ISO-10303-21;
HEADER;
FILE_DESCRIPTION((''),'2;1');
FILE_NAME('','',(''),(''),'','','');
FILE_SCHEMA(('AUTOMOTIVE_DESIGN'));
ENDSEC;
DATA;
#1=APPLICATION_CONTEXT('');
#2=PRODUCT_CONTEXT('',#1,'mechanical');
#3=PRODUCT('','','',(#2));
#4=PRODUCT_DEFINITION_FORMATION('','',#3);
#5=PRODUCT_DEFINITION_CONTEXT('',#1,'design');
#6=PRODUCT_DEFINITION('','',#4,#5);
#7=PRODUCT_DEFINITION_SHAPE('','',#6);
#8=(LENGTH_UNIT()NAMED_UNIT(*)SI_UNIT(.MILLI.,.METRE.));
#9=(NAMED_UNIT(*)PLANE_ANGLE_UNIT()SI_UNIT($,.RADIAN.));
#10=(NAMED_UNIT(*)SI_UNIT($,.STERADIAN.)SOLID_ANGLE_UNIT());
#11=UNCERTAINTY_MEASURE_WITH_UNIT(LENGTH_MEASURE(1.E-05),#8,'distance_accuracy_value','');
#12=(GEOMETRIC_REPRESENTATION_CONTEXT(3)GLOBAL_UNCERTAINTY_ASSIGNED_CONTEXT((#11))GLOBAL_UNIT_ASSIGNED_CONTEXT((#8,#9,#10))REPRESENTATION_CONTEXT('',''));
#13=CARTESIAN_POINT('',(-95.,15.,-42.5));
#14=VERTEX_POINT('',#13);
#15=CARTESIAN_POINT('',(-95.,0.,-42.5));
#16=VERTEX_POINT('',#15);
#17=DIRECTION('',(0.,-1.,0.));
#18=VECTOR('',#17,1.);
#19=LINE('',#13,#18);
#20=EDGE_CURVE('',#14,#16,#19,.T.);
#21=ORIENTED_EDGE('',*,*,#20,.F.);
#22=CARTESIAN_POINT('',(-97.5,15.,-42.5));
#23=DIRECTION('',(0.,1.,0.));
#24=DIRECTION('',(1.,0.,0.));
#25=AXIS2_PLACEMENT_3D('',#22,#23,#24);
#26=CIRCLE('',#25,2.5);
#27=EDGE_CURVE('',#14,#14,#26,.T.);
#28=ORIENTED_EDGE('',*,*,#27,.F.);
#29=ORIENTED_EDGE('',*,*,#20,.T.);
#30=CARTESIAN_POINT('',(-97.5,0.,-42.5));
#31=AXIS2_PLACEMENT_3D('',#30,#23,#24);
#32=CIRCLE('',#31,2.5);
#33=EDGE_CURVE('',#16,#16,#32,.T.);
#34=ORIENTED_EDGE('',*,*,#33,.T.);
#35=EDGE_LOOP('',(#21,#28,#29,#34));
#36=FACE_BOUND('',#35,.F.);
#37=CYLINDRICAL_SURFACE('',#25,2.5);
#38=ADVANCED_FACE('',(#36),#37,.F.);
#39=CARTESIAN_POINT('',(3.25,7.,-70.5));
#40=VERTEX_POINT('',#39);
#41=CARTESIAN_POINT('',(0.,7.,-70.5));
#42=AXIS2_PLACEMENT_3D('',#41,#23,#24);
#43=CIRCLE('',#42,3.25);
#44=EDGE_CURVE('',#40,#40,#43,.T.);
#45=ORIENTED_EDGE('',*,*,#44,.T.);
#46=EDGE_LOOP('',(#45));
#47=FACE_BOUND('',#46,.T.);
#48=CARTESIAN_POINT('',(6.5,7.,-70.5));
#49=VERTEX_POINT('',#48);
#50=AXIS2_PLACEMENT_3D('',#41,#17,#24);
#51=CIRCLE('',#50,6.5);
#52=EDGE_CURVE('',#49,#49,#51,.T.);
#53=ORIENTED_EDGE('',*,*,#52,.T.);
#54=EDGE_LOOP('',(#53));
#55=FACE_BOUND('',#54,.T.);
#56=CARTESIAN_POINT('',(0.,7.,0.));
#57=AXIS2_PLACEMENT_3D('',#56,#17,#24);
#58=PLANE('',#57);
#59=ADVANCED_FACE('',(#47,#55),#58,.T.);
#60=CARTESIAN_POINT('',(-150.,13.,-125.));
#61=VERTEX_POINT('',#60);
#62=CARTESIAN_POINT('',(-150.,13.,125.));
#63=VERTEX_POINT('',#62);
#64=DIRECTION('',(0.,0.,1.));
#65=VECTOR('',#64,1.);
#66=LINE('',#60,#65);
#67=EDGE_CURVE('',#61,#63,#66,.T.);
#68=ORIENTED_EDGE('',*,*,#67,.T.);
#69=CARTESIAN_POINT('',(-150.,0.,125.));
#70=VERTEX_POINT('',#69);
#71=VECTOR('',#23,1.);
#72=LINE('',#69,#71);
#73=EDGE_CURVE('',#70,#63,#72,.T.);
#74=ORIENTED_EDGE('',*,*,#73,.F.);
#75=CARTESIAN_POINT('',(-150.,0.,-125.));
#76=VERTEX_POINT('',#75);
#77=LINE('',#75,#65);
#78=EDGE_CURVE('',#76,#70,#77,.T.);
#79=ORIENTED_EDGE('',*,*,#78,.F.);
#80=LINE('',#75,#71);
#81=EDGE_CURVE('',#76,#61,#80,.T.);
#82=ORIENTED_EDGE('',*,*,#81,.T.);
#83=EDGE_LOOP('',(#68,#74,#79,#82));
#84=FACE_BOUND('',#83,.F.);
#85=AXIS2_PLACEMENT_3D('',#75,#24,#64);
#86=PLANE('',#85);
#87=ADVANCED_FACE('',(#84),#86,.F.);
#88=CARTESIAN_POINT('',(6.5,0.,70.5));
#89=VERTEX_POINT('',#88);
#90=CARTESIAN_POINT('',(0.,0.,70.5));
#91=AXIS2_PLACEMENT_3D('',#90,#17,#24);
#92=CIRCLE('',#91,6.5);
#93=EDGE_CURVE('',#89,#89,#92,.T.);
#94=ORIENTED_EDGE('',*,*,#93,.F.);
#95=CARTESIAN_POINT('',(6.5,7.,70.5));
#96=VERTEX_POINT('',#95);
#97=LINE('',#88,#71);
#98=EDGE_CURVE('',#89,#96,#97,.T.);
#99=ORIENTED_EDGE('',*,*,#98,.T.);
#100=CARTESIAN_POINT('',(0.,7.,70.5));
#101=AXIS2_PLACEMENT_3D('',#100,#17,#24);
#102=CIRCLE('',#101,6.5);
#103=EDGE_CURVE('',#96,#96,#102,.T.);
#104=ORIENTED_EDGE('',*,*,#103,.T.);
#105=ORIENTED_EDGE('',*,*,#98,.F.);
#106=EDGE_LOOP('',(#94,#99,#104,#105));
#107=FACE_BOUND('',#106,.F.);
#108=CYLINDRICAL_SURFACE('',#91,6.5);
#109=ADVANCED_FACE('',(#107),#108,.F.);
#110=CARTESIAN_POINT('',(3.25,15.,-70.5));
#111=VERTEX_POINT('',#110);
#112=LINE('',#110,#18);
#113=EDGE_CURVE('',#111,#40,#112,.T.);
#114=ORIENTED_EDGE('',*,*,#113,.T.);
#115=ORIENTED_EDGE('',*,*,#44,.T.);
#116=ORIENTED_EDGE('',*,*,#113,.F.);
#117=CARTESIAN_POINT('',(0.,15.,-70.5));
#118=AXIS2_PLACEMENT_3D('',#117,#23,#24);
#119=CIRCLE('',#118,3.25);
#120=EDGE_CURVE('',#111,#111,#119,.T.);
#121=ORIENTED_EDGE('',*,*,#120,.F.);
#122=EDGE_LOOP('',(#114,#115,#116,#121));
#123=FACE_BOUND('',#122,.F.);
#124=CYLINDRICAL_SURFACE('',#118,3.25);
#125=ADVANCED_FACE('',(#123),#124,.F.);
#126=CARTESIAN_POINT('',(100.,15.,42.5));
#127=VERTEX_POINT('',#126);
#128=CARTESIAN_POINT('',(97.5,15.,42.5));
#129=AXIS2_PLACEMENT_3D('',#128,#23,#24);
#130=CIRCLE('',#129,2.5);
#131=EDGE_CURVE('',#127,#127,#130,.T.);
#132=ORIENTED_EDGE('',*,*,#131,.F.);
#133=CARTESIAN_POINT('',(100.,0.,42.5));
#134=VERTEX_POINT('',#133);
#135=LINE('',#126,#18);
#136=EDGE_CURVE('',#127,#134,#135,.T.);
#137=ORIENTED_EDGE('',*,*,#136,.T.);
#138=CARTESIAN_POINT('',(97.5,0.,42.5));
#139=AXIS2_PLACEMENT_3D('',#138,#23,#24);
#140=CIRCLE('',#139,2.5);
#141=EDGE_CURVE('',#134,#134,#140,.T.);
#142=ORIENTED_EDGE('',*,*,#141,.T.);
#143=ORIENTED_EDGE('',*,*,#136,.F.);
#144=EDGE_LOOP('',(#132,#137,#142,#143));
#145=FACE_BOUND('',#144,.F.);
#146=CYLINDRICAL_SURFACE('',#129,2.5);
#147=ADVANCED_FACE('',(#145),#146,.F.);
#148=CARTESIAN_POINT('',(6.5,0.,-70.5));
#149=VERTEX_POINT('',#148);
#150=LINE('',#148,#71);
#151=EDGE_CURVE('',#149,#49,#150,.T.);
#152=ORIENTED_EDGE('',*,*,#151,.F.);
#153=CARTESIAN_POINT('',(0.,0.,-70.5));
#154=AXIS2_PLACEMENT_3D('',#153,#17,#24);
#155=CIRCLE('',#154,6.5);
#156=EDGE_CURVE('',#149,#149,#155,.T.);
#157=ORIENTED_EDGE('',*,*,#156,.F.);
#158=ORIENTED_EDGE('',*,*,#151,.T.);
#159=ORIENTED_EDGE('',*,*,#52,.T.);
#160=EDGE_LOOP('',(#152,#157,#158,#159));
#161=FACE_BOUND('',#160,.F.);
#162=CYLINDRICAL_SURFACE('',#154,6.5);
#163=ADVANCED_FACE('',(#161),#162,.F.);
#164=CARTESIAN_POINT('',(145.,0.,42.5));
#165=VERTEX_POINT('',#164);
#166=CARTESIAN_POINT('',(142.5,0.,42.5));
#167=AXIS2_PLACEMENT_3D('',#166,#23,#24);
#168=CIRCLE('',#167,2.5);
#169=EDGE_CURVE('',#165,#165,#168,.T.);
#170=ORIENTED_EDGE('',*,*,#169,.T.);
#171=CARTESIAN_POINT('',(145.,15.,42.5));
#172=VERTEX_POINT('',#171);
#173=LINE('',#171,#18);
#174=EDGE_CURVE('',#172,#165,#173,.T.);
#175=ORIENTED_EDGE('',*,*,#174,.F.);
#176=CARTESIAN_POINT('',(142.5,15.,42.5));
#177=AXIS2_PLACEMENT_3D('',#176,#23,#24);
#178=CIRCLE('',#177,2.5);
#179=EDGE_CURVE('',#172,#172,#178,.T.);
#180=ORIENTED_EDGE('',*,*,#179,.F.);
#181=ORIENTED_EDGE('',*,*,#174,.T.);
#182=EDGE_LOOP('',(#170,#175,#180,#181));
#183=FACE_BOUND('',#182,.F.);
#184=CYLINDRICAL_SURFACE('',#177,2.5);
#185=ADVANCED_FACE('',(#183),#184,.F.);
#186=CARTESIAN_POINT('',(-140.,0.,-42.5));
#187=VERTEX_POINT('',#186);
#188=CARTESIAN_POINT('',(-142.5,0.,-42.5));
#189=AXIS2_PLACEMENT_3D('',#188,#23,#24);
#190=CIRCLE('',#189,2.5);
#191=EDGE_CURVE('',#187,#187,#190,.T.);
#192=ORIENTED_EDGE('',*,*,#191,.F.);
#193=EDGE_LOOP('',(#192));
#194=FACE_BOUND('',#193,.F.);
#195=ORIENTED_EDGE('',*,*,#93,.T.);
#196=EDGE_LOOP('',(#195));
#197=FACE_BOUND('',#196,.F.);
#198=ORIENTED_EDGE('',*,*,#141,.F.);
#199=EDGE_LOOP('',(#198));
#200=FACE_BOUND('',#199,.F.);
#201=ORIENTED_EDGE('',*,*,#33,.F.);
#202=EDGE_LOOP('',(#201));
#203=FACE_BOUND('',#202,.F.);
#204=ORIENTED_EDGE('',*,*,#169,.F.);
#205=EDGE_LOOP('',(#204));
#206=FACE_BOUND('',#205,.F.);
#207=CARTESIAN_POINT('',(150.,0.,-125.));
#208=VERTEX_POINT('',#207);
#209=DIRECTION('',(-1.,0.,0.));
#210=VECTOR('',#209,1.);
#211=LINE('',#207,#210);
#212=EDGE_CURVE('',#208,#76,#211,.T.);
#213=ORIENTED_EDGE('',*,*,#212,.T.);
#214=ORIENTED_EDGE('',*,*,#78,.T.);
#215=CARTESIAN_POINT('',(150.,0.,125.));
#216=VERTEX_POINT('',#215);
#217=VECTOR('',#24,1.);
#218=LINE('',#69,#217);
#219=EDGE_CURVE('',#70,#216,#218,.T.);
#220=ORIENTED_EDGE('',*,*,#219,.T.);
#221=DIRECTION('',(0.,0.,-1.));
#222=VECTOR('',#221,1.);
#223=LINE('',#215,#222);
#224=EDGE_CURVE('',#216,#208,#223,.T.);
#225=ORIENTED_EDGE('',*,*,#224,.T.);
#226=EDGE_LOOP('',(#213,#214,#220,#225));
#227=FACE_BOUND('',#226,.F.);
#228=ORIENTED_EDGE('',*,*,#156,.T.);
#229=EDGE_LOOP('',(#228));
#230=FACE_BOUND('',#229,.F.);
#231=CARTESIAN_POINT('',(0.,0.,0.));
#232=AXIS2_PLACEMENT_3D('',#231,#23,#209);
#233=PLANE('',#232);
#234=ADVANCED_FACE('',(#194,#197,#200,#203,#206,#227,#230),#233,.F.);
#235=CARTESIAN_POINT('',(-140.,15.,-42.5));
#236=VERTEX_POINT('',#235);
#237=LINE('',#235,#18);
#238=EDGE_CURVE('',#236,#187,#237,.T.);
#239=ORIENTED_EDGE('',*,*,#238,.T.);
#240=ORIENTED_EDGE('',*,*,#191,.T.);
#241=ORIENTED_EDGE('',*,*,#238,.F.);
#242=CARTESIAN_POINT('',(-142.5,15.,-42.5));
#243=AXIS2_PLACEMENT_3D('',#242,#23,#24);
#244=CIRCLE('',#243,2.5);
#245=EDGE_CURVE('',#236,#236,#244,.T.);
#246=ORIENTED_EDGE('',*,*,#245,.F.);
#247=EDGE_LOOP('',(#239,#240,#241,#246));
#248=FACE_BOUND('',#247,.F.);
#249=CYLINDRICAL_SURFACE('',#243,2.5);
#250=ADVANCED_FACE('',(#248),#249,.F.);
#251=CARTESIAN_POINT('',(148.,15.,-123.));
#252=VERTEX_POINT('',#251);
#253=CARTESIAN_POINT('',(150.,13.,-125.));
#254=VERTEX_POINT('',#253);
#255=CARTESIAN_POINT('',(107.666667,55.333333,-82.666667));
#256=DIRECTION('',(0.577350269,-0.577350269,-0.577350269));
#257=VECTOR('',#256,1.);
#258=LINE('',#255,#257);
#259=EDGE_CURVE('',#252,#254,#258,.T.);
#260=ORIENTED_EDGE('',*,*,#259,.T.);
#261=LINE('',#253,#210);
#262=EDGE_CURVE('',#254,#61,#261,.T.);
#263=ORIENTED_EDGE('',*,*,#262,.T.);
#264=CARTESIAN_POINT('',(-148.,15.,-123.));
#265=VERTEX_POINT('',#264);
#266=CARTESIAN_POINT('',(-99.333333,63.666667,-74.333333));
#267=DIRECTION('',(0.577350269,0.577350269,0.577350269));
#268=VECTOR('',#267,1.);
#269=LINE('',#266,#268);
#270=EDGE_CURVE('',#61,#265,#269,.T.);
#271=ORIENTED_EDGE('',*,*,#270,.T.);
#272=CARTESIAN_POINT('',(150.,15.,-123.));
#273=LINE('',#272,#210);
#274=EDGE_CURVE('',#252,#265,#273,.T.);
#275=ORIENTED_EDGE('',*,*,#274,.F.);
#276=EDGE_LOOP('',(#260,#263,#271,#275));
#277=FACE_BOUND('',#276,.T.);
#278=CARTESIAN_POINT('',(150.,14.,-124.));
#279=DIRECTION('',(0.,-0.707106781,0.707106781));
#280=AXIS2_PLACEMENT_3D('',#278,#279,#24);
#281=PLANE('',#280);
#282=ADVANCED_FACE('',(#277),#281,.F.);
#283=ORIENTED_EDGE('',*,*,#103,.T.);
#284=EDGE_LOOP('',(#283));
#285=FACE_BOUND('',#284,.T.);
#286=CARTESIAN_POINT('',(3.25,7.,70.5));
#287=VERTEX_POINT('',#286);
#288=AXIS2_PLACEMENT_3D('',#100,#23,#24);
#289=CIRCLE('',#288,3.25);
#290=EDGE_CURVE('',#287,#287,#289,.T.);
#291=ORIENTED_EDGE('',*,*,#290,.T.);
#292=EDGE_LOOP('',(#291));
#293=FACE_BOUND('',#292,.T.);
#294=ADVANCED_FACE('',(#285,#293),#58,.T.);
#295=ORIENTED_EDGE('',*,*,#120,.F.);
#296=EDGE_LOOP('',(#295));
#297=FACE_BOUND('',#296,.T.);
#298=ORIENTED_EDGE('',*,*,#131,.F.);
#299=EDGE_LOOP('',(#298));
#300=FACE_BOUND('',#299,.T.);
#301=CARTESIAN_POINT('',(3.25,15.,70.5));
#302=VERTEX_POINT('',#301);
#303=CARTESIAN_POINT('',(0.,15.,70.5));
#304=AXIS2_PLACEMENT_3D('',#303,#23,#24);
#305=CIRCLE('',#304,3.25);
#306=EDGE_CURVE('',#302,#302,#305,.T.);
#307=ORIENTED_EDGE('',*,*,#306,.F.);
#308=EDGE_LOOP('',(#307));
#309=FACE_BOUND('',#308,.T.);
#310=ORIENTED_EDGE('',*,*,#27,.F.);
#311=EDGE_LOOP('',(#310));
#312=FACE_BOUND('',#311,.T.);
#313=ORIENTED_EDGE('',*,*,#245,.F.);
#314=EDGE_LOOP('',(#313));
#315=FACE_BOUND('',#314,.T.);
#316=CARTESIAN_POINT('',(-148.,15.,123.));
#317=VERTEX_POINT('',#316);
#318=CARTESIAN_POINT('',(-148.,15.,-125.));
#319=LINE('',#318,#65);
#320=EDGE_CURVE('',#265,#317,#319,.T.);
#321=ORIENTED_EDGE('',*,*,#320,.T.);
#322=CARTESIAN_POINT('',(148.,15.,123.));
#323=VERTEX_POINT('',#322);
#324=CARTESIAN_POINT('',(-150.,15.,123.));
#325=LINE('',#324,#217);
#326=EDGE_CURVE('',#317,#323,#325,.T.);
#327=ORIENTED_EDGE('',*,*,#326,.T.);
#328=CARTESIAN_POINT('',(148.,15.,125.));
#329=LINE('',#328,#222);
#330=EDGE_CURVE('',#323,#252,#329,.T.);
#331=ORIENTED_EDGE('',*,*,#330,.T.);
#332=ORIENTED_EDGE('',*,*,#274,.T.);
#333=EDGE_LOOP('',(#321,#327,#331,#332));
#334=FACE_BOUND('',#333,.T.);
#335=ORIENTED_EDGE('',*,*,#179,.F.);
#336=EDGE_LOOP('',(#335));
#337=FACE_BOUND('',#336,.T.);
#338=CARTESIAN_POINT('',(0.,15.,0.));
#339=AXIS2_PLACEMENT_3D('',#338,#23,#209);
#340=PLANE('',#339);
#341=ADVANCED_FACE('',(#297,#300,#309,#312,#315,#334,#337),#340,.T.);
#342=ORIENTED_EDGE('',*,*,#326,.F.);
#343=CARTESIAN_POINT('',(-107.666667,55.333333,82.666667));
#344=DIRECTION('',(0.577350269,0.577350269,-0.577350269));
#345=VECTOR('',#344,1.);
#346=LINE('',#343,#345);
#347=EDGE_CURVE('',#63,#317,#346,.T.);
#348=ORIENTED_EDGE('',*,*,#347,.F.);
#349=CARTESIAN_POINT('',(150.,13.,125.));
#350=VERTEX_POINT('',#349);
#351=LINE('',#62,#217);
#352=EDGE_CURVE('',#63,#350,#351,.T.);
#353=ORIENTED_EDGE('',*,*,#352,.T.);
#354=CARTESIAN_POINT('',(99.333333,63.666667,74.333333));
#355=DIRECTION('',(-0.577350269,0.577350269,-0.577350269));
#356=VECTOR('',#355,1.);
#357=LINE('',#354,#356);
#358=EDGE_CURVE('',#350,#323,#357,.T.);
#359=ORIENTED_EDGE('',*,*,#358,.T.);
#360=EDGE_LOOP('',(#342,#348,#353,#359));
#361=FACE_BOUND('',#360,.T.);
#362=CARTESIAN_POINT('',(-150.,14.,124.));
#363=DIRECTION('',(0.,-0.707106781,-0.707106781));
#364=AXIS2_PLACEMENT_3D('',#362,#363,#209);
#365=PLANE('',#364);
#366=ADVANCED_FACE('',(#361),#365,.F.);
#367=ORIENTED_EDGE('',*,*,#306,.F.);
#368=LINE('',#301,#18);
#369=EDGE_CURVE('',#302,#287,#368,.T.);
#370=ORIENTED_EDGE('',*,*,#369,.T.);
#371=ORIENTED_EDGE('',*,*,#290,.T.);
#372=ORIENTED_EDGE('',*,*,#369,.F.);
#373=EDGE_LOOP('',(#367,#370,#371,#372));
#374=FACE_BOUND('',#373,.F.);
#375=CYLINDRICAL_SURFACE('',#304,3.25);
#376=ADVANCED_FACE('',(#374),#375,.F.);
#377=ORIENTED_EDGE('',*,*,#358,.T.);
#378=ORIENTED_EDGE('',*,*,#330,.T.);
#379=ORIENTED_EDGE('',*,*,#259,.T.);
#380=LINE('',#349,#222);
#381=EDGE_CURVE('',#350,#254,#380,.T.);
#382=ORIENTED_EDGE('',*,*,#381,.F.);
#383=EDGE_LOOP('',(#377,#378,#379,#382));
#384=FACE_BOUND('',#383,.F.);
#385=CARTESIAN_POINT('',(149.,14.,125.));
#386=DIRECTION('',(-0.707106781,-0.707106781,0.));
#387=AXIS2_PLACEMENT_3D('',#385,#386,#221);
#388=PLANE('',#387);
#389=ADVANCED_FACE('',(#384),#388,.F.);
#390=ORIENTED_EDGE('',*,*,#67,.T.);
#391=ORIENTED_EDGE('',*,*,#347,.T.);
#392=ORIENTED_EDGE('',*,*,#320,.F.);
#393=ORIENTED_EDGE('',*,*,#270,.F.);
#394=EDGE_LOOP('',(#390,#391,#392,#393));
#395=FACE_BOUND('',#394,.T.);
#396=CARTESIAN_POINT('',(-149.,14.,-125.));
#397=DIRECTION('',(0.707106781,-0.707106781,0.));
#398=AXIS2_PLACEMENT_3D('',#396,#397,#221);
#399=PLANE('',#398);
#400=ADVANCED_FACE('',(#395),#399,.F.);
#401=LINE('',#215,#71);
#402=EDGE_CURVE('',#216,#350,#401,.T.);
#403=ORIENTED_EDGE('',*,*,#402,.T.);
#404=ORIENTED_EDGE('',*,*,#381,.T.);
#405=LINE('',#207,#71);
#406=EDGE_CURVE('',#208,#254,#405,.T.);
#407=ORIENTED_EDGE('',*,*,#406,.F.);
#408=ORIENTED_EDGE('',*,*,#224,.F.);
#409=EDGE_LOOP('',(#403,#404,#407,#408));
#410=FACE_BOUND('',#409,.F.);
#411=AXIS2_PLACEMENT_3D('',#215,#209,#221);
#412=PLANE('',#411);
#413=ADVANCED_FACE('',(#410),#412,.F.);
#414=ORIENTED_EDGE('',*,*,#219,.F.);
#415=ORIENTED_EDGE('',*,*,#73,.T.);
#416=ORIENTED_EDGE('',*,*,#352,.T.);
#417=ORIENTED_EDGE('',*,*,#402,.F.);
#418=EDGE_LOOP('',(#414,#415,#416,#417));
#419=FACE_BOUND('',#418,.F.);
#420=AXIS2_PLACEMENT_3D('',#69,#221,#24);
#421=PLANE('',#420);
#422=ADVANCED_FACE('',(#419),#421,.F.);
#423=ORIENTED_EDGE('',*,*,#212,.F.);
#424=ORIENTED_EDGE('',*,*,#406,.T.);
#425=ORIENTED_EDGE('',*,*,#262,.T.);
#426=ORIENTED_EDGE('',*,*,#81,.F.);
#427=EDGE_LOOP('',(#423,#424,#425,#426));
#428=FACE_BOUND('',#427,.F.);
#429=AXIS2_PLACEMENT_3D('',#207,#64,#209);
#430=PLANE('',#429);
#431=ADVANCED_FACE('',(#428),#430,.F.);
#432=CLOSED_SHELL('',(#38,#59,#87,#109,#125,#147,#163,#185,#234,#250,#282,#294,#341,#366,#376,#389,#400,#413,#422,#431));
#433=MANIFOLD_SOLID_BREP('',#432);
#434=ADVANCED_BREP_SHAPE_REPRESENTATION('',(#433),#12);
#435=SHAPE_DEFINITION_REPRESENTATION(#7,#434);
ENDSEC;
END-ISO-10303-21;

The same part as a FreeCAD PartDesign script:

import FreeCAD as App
import Part
import Sketcher

V = App.Vector


def edges_at(feature, points):
    """Names of the edges that pass closest to the given points."""
    edges = feature.Shape.Edges
    near = lambda p: min(range(len(edges)), key=lambda i: edges[i].distToShape(Part.Vertex(*p))[0])
    return sorted({f"Edge{near(p) + 1}" for p in points})


def add_polygon(sketch, points):
    """Adds a closed chain of lines whose ends are joined by coincident constraints."""
    first, n = sketch.GeometryCount, len(points)
    for a, b in zip(points, points[1:] + points[:1]):
        sketch.addGeometry(Part.LineSegment(App.Vector(*a, 0), App.Vector(*b, 0)), False)
    for i in range(n):
        sketch.addConstraint(Sketcher.Constraint("Coincident", first + i, 2, first + (i + 1) % n, 1))

doc = App.newDocument("Part")
body = doc.addObject("PartDesign::Body", "Body")

sketch1 = doc.addObject("Sketcher::SketchObject", "Sketch")
body.addObject(sketch1)
sketch1.AttachmentSupport = (doc.XZ_Plane, [""])
sketch1.MapMode = "FlatFace"
add_polygon(sketch1, [(-150, -125), (-150, 125), (150, 125), (150, -125)])
sketch1.addConstraint(Sketcher.Constraint("Vertical", 0))
sketch1.addConstraint(Sketcher.Constraint("Horizontal", 1))
sketch1.addConstraint(Sketcher.Constraint("Vertical", 2))
sketch1.addConstraint(Sketcher.Constraint("Horizontal", 3))
sketch1.addConstraint(Sketcher.Constraint("Symmetric", 0, 2, 2, 2, -1, 1))
sketch1.addConstraint(Sketcher.Constraint("DistanceX", 1, 1, 1, 2, 300.0))
sketch1.addConstraint(Sketcher.Constraint("DistanceY", 0, 1, 0, 2, 250.0))
pad1 = doc.addObject("PartDesign::Pad", "Pad")
body.addObject(pad1)
pad1.Profile = sketch1
pad1.Length = 15
pad1.Reversed = True

sketch2 = doc.addObject("Sketcher::SketchObject", "Sketch001")
body.addObject(sketch2)
sketch2.AttachmentSupport = (doc.XZ_Plane, [""])
sketch2.MapMode = "FlatFace"
sketch2.AttachmentOffset = App.Placement(V(0, 0, -15), App.Rotation())
sketch2.addGeometry(Part.Circle(V(0, 70.5, 0), V(0, 0, 1), 3.25), False)
sketch2.addGeometry(Part.Circle(V(0, -70.5, 0), V(0, 0, 1), 3.25), False)
sketch2.addConstraint(Sketcher.Constraint("Equal", 0, 1))
sketch2.addConstraint(Sketcher.Constraint("Symmetric", 0, 3, 1, 3, -1, 1))
sketch2.addConstraint(Sketcher.Constraint("PointOnObject", 0, 3, -2))
sketch2.addConstraint(Sketcher.Constraint("Diameter", 0, 6.5))
sketch2.addConstraint(Sketcher.Constraint("DistanceY", -1, 1, 0, 3, 70.5))
pocket1 = doc.addObject("PartDesign::Pocket", "Pocket")
body.addObject(pocket1)
pocket1.Profile = sketch2
pocket1.Length = 15
pocket1.Reversed = True

sketch3 = doc.addObject("Sketcher::SketchObject", "Sketch002")
body.addObject(sketch3)
sketch3.AttachmentSupport = (doc.XZ_Plane, [""])
sketch3.MapMode = "FlatFace"
sketch3.addGeometry(Part.Circle(V(0, 70.5, 0), V(0, 0, 1), 6.5), False)
sketch3.addGeometry(Part.Circle(V(0, -70.5, 0), V(0, 0, 1), 6.5), False)
sketch3.addConstraint(Sketcher.Constraint("Equal", 0, 1))
sketch3.addConstraint(Sketcher.Constraint("Symmetric", 0, 3, 1, 3, -1, 1))
sketch3.addConstraint(Sketcher.Constraint("PointOnObject", 0, 3, -2))
sketch3.addConstraint(Sketcher.Constraint("Diameter", 0, 13.0))
sketch3.addConstraint(Sketcher.Constraint("DistanceY", -1, 1, 0, 3, 70.5))
pocket2 = doc.addObject("PartDesign::Pocket", "Pocket001")
body.addObject(pocket2)
pocket2.Profile = sketch3
pocket2.Length = 7
doc.recompute()

chamfer = doc.addObject("PartDesign::Chamfer", "Chamfer")
body.addObject(chamfer)
chamfer.Base = (pocket2, edges_at(pocket2, [
    (0, 15, 125),
    (150, 15, 0),
    (0, 15, -125),
    (-150, 15, 0),
]))
chamfer.Size = 2

sketch4 = doc.addObject("Sketcher::SketchObject", "Sketch003")
body.addObject(sketch4)
sketch4.AttachmentSupport = (doc.XZ_Plane, [""])
sketch4.MapMode = "FlatFace"
sketch4.AttachmentOffset = App.Placement(V(0, 0, -15), App.Rotation())
sketch4.addGeometry(Part.Circle(V(142.5, 42.5, 0), V(0, 0, 1), 2.5), False)
sketch4.addGeometry(Part.Circle(V(97.5, 42.5, 0), V(0, 0, 1), 2.5), False)
sketch4.addGeometry(Part.Circle(V(-142.5, -42.5, 0), V(0, 0, 1), 2.5), False)
sketch4.addGeometry(Part.Circle(V(-97.5, -42.5, 0), V(0, 0, 1), 2.5), False)
sketch4.addConstraint(Sketcher.Constraint("Equal", 0, 1))
sketch4.addConstraint(Sketcher.Constraint("Equal", 1, 2))
sketch4.addConstraint(Sketcher.Constraint("Equal", 2, 3))
sketch4.addConstraint(Sketcher.Constraint("Symmetric", 0, 3, 2, 3, -1, 1))
sketch4.addConstraint(Sketcher.Constraint("Symmetric", 1, 3, 3, 3, -1, 1))
sketch4.addConstraint(Sketcher.Constraint("Horizontal", 0, 3, 1, 3))
sketch4.addConstraint(Sketcher.Constraint("Diameter", 0, 5.0))
sketch4.addConstraint(Sketcher.Constraint("DistanceX", 1, 3, 0, 3, 45.0))
sketch4.addConstraint(Sketcher.Constraint("DistanceX", 2, 3, 1, 3, 240.0))
sketch4.addConstraint(Sketcher.Constraint("DistanceY", 2, 3, 1, 3, 85.0))
pocket3 = doc.addObject("PartDesign::Pocket", "Pocket002")
body.addObject(pocket3)
pocket3.Profile = sketch4
pocket3.Length = 20
pocket3.Reversed = True

doc.recompute()
